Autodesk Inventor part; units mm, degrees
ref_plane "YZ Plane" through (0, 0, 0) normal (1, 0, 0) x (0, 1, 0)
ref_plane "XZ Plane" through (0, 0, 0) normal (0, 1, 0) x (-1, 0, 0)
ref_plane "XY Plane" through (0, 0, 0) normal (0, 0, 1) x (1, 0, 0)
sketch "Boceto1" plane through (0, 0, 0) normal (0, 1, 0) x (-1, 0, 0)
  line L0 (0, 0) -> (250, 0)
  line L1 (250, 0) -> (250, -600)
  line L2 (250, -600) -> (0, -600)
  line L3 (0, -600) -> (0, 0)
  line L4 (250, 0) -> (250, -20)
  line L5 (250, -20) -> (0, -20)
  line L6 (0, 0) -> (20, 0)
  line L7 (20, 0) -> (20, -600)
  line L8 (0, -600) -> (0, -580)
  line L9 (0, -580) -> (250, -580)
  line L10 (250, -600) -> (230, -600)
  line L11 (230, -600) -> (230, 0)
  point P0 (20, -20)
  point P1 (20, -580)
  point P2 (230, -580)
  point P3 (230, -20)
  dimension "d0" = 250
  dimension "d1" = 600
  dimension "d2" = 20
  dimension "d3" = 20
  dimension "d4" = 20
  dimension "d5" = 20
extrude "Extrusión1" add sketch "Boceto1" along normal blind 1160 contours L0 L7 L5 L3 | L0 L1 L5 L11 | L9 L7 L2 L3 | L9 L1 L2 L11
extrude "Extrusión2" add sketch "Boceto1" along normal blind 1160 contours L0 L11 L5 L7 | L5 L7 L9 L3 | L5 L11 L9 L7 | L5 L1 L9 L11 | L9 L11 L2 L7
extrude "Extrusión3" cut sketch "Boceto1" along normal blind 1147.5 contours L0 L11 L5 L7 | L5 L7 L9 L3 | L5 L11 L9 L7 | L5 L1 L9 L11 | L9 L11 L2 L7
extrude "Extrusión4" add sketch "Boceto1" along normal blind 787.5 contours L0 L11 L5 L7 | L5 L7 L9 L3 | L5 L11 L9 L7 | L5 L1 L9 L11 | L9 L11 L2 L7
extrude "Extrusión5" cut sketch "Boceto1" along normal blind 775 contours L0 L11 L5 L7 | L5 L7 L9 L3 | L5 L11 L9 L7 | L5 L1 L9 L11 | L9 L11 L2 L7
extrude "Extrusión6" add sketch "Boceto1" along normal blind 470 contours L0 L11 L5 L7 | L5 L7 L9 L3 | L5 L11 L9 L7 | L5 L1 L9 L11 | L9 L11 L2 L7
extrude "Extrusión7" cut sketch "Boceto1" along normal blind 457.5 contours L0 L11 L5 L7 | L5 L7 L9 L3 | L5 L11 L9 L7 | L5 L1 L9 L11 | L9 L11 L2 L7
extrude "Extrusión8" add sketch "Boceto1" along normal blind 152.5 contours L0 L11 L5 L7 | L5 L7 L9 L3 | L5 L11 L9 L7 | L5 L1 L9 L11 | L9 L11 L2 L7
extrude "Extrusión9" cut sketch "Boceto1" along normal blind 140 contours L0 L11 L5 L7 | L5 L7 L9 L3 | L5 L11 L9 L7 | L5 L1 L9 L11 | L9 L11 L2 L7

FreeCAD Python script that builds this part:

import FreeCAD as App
import Part
import Sketcher
from FreeCAD import Vector

doc = App.newDocument("Part")
body = doc.addObject("PartDesign::Body", "Body")
body.AllowCompound = True

# Sketch on XZ plane
sketch1 = body.newObject("Sketcher::SketchObject", "Sketch")
sketch1.AttachmentSupport = (doc.getObject("XZ_Plane"), [""])
sketch1.MapMode = "FlatFace"
sketch1.addGeometry(Part.LineSegment(Vector(-20, 0, 0), Vector(0, 0, 0)), False)
sketch1.addGeometry(Part.LineSegment(Vector(0, 0, 0), Vector(0, -20, 0)), False)
sketch1.addGeometry(Part.LineSegment(Vector(0, -20, 0), Vector(-20, -20, 0)), False)
sketch1.addGeometry(Part.LineSegment(Vector(-20, -20, 0), Vector(-20, 0, 0)), False)
sketch1.addGeometry(Part.LineSegment(Vector(-250, 0, 0), Vector(-230, 0, 0)), False)
sketch1.addGeometry(Part.LineSegment(Vector(-230, 0, 0), Vector(-230, -20, 0)), False)
sketch1.addGeometry(Part.LineSegment(Vector(-230, -20, 0), Vector(-250, -20, 0)), False)
sketch1.addGeometry(Part.LineSegment(Vector(-250, -20, 0), Vector(-250, 0, 0)), False)
sketch1.addGeometry(Part.LineSegment(Vector(-20, -580, 0), Vector(0, -580, 0)), False)
sketch1.addGeometry(Part.LineSegment(Vector(0, -580, 0), Vector(0, -600, 0)), False)
sketch1.addGeometry(Part.LineSegment(Vector(0, -600, 0), Vector(-20, -600, 0)), False)
sketch1.addGeometry(Part.LineSegment(Vector(-20, -600, 0), Vector(-20, -580, 0)), False)
sketch1.addGeometry(Part.LineSegment(Vector(-250, -580, 0), Vector(-230, -580, 0)), False)
sketch1.addGeometry(Part.LineSegment(Vector(-230, -580, 0), Vector(-230, -600, 0)), False)
sketch1.addGeometry(Part.LineSegment(Vector(-230, -600, 0), Vector(-250, -600, 0)), False)
sketch1.addGeometry(Part.LineSegment(Vector(-250, -600, 0), Vector(-250, -580, 0)), False)
sketch1.addConstraint(Sketcher.Constraint("Coincident", 0, 2, 1, 1))
sketch1.addConstraint(Sketcher.Constraint("Coincident", 1, 2, 2, 1))
sketch1.addConstraint(Sketcher.Constraint("Coincident", 2, 2, 3, 1))
sketch1.addConstraint(Sketcher.Constraint("Coincident", 3, 2, 0, 1))
sketch1.addConstraint(Sketcher.Constraint("Coincident", 4, 2, 5, 1))
sketch1.addConstraint(Sketcher.Constraint("Coincident", 5, 2, 6, 1))
sketch1.addConstraint(Sketcher.Constraint("Coincident", 6, 2, 7, 1))
sketch1.addConstraint(Sketcher.Constraint("Coincident", 7, 2, 4, 1))
sketch1.addConstraint(Sketcher.Constraint("Coincident", 8, 2, 9, 1))
sketch1.addConstraint(Sketcher.Constraint("Coincident", 9, 2, 10, 1))
sketch1.addConstraint(Sketcher.Constraint("Coincident", 10, 2, 11, 1))
sketch1.addConstraint(Sketcher.Constraint("Coincident", 11, 2, 8, 1))
sketch1.addConstraint(Sketcher.Constraint("Coincident", 12, 2, 13, 1))
sketch1.addConstraint(Sketcher.Constraint("Coincident", 13, 2, 14, 1))
sketch1.addConstraint(Sketcher.Constraint("Coincident", 14, 2, 15, 1))
sketch1.addConstraint(Sketcher.Constraint("Coincident", 15, 2, 12, 1))
sketch1.addConstraint(Sketcher.Constraint("Horizontal", 0))
sketch1.addConstraint(Sketcher.Constraint("Vertical", 1))
sketch1.addConstraint(Sketcher.Constraint("Horizontal", 2))
sketch1.addConstraint(Sketcher.Constraint("Vertical", 3))
sketch1.addConstraint(Sketcher.Constraint("Horizontal", 4))
sketch1.addConstraint(Sketcher.Constraint("Vertical", 5))
sketch1.addConstraint(Sketcher.Constraint("Horizontal", 6))
sketch1.addConstraint(Sketcher.Constraint("Vertical", 7))
sketch1.addConstraint(Sketcher.Constraint("Horizontal", 8))
sketch1.addConstraint(Sketcher.Constraint("Vertical", 9))
sketch1.addConstraint(Sketcher.Constraint("Horizontal", 10))
sketch1.addConstraint(Sketcher.Constraint("Vertical", 11))
sketch1.addConstraint(Sketcher.Constraint("Horizontal", 12))
sketch1.addConstraint(Sketcher.Constraint("Vertical", 13))
sketch1.addConstraint(Sketcher.Constraint("Horizontal", 14))
sketch1.addConstraint(Sketcher.Constraint("Vertical", 15))
sketch1.addConstraint(Sketcher.Constraint("Coincident", 0, 2, -1, 1))
sketch1.addConstraint(Sketcher.Constraint("PointOnObject", 4, 2, -1))
sketch1.addConstraint(Sketcher.Constraint("PointOnObject", 8, 2, -2))
sketch1.addConstraint(Sketcher.Constraint("Horizontal", 2, 2, 5, 2))
sketch1.addConstraint(Sketcher.Constraint("Horizontal", 11, 2, 12, 2))
sketch1.addConstraint(Sketcher.Constraint("Horizontal", 10, 2, 13, 2))
sketch1.addConstraint(Sketcher.Constraint("Vertical", 3, 2, 10, 2))
sketch1.addConstraint(Sketcher.Constraint("Vertical", 5, 2, 12, 2))
sketch1.addConstraint(Sketcher.Constraint("Vertical", 7, 2, 14, 2))
sketch1.addConstraint(Sketcher.Constraint("Equal", 2, 4))
sketch1.addConstraint(Sketcher.Constraint("Equal", 14, 1))
sketch1.addConstraint(Sketcher.Constraint("Equal", 7, 9))
sketch1.addConstraint(Sketcher.Constraint("DistanceX", 0, 1, 0, 2, 20.0))
sketch1.addConstraint(Sketcher.Constraint("DistanceX", 6, 2, -1, 1, 250.0))
sketch1.addConstraint(Sketcher.Constraint("DistanceY", 9, 2, -1, 1, 600.0))
pad1 = body.newObject("PartDesign::Pad", "Pad")
pad1.Profile = sketch1
pad1.Length = 1160
pad1.Reversed = True

# Sketch on XZ plane
sketch2 = body.newObject("Sketcher::SketchObject", "Sketch001")
sketch2.AttachmentSupport = (doc.getObject("XZ_Plane"), [""])
sketch2.MapMode = "FlatFace"
sketch2.addGeometry(Part.LineSegment(Vector(-230, 0, 0), Vector(-20, 0, 0)), False)
sketch2.addGeometry(Part.LineSegment(Vector(-20, 0, 0), Vector(-20, -20, 0)), False)
sketch2.addGeometry(Part.LineSegment(Vector(-20, -20, 0), Vector(0, -20, 0)), False)
sketch2.addGeometry(Part.LineSegment(Vector(0, -20, 0), Vector(0, -580, 0)), False)
sketch2.addGeometry(Part.LineSegment(Vector(0, -580, 0), Vector(-20, -580, 0)), False)
sketch2.addGeometry(Part.LineSegment(Vector(-20, -580, 0), Vector(-20, -600, 0)), False)
sketch2.addGeometry(Part.LineSegment(Vector(-20, -600, 0), Vector(-230, -600, 0)), False)
sketch2.addGeometry(Part.LineSegment(Vector(-230, -600, 0), Vector(-230, -580, 0)), False)
sketch2.addGeometry(Part.LineSegment(Vector(-230, -580, 0), Vector(-250, -580, 0)), False)
sketch2.addGeometry(Part.LineSegment(Vector(-250, -580, 0), Vector(-250, -20, 0)), False)
sketch2.addGeometry(Part.LineSegment(Vector(-250, -20, 0), Vector(-230, -20, 0)), False)
sketch2.addGeometry(Part.LineSegment(Vector(-230, -20, 0), Vector(-230, 0, 0)), False)
sketch2.addConstraint(Sketcher.Constraint("Coincident", 0, 2, 1, 1))
sketch2.addConstraint(Sketcher.Constraint("Coincident", 1, 2, 2, 1))
sketch2.addConstraint(Sketcher.Constraint("Coincident", 2, 2, 3, 1))
sketch2.addConstraint(Sketcher.Constraint("Coincident", 3, 2, 4, 1))
sketch2.addConstraint(Sketcher.Constraint("Coincident", 4, 2, 5, 1))
sketch2.addConstraint(Sketcher.Constraint("Coincident", 5, 2, 6, 1))
sketch2.addConstraint(Sketcher.Constraint("Coincident", 6, 2, 7, 1))
sketch2.addConstraint(Sketcher.Constraint("Coincident", 7, 2, 8, 1))
sketch2.addConstraint(Sketcher.Constraint("Coincident", 8, 2, 9, 1))
sketch2.addConstraint(Sketcher.Constraint("Coincident", 9, 2, 10, 1))
sketch2.addConstraint(Sketcher.Constraint("Coincident", 10, 2, 11, 1))
sketch2.addConstraint(Sketcher.Constraint("Coincident", 11, 2, 0, 1))
sketch2.addConstraint(Sketcher.Constraint("Horizontal", 0))
sketch2.addConstraint(Sketcher.Constraint("Vertical", 1))
sketch2.addConstraint(Sketcher.Constraint("Horizontal", 2))
sketch2.addConstraint(Sketcher.Constraint("Vertical", 3))
sketch2.addConstraint(Sketcher.Constraint("Horizontal", 4))
sketch2.addConstraint(Sketcher.Constraint("Vertical", 5))
sketch2.addConstraint(Sketcher.Constraint("Horizontal", 6))
sketch2.addConstraint(Sketcher.Constraint("Vertical", 7))
sketch2.addConstraint(Sketcher.Constraint("Horizontal", 8))
sketch2.addConstraint(Sketcher.Constraint("Vertical", 9))
sketch2.addConstraint(Sketcher.Constraint("Horizontal", 10))
sketch2.addConstraint(Sketcher.Constraint("Vertical", 11))
sketch2.addConstraint(Sketcher.Constraint("PointOnObject", 0, 2, -1))
sketch2.addConstraint(Sketcher.Constraint("PointOnObject", 2, 2, -2))
sketch2.addConstraint(Sketcher.Constraint("Horizontal", 4, 2, 7, 2))
sketch2.addConstraint(Sketcher.Constraint("Horizontal", 2, 2, 9, 2))
sketch2.addConstraint(Sketcher.Constraint("Vertical", 1, 2, 4, 2))
sketch2.addConstraint(Sketcher.Constraint("Vertical", 7, 2, 10, 2))
sketch2.addConstraint(Sketcher.Constraint("Equal", 4, 8))
sketch2.addConstraint(Sketcher.Constraint("Equal", 10, 1))
sketch2.addConstraint(Sketcher.Constraint("Equal", 1, 5))
sketch2.addConstraint(Sketcher.Constraint("DistanceX", 2, 1, 2, 2, 20.0))
sketch2.addConstraint(Sketcher.Constraint("DistanceY", 5, 2, -1, 1, 600.0))
sketch2.addConstraint(Sketcher.Constraint("DistanceX", 8, 2, -1, 1, 250.0))
pad2 = body.newObject("PartDesign::Pad", "Pad001")
pad2.Profile = sketch2
pad2.Length = 1160
pad2.Reversed = True

# Sketch on XZ plane
sketch3 = body.newObject("Sketcher::SketchObject", "Sketch002")
sketch3.AttachmentSupport = (doc.getObject("XZ_Plane"), [""])
sketch3.MapMode = "FlatFace"
sketch3.addGeometry(Part.LineSegment(Vector(-230, 0, 0), Vector(-20, 0, 0)), False)
sketch3.addGeometry(Part.LineSegment(Vector(-20, 0, 0), Vector(-20, -20, 0)), False)
sketch3.addGeometry(Part.LineSegment(Vector(-20, -20, 0), Vector(0, -20, 0)), False)
sketch3.addGeometry(Part.LineSegment(Vector(0, -20, 0), Vector(0, -580, 0)), False)
sketch3.addGeometry(Part.LineSegment(Vector(0, -580, 0), Vector(-20, -580, 0)), False)
sketch3.addGeometry(Part.LineSegment(Vector(-20, -580, 0), Vector(-20, -600, 0)), False)
sketch3.addGeometry(Part.LineSegment(Vector(-20, -600, 0), Vector(-230, -600, 0)), False)
sketch3.addGeometry(Part.LineSegment(Vector(-230, -600, 0), Vector(-230, -580, 0)), False)
sketch3.addGeometry(Part.LineSegment(Vector(-230, -580, 0), Vector(-250, -580, 0)), False)
sketch3.addGeometry(Part.LineSegment(Vector(-250, -580, 0), Vector(-250, -20, 0)), False)
sketch3.addGeometry(Part.LineSegment(Vector(-250, -20, 0), Vector(-230, -20, 0)), False)
sketch3.addGeometry(Part.LineSegment(Vector(-230, -20, 0), Vector(-230, 0, 0)), False)
sketch3.addConstraint(Sketcher.Constraint("Coincident", 0, 2, 1, 1))
sketch3.addConstraint(Sketcher.Constraint("Coincident", 1, 2, 2, 1))
sketch3.addConstraint(Sketcher.Constraint("Coincident", 2, 2, 3, 1))
sketch3.addConstraint(Sketcher.Constraint("Coincident", 3, 2, 4, 1))
sketch3.addConstraint(Sketcher.Constraint("Coincident", 4, 2, 5, 1))
sketch3.addConstraint(Sketcher.Constraint("Coincident", 5, 2, 6, 1))
sketch3.addConstraint(Sketcher.Constraint("Coincident", 6, 2, 7, 1))
sketch3.addConstraint(Sketcher.Constraint("Coincident", 7, 2, 8, 1))
sketch3.addConstraint(Sketcher.Constraint("Coincident", 8, 2, 9, 1))
sketch3.addConstraint(Sketcher.Constraint("Coincident", 9, 2, 10, 1))
sketch3.addConstraint(Sketcher.Constraint("Coincident", 10, 2, 11, 1))
sketch3.addConstraint(Sketcher.Constraint("Coincident", 11, 2, 0, 1))
sketch3.addConstraint(Sketcher.Constraint("Horizontal", 0))
sketch3.addConstraint(Sketcher.Constraint("Vertical", 1))
sketch3.addConstraint(Sketcher.Constraint("Horizontal", 2))
sketch3.addConstraint(Sketcher.Constraint("Vertical", 3))
sketch3.addConstraint(Sketcher.Constraint("Horizontal", 4))
sketch3.addConstraint(Sketcher.Constraint("Vertical", 5))
sketch3.addConstraint(Sketcher.Constraint("Horizontal", 6))
sketch3.addConstraint(Sketcher.Constraint("Vertical", 7))
sketch3.addConstraint(Sketcher.Constraint("Horizontal", 8))
sketch3.addConstraint(Sketcher.Constraint("Vertical", 9))
sketch3.addConstraint(Sketcher.Constraint("Horizontal", 10))
sketch3.addConstraint(Sketcher.Constraint("Vertical", 11))
sketch3.addConstraint(Sketcher.Constraint("PointOnObject", 0, 2, -1))
sketch3.addConstraint(Sketcher.Constraint("PointOnObject", 2, 2, -2))
sketch3.addConstraint(Sketcher.Constraint("Horizontal", 4, 2, 7, 2))
sketch3.addConstraint(Sketcher.Constraint("Horizontal", 2, 2, 9, 2))
sketch3.addConstraint(Sketcher.Constraint("Vertical", 1, 2, 4, 2))
sketch3.addConstraint(Sketcher.Constraint("Vertical", 7, 2, 10, 2))
sketch3.addConstraint(Sketcher.Constraint("Equal", 4, 8))
sketch3.addConstraint(Sketcher.Constraint("Equal", 10, 1))
sketch3.addConstraint(Sketcher.Constraint("Equal", 1, 5))
sketch3.addConstraint(Sketcher.Constraint("DistanceX", 2, 1, 2, 2, 20.0))
sketch3.addConstraint(Sketcher.Constraint("DistanceY", 5, 2, -1, 1, 600.0))
sketch3.addConstraint(Sketcher.Constraint("DistanceX", 8, 2, -1, 1, 250.0))
pocket1 = body.newObject("PartDesign::Pocket", "Pocket")
pocket1.Profile = sketch3
pocket1.Length = 1147.5

# Sketch on XZ plane
sketch4 = body.newObject("Sketcher::SketchObject", "Sketch003")
sketch4.AttachmentSupport = (doc.getObject("XZ_Plane"), [""])
sketch4.MapMode = "FlatFace"
sketch4.addGeometry(Part.LineSegment(Vector(-230, 0, 0), Vector(-20, 0, 0)), False)
sketch4.addGeometry(Part.LineSegment(Vector(-20, 0, 0), Vector(-20, -20, 0)), False)
sketch4.addGeometry(Part.LineSegment(Vector(-20, -20, 0), Vector(0, -20, 0)), False)
sketch4.addGeometry(Part.LineSegment(Vector(0, -20, 0), Vector(0, -580, 0)), False)
sketch4.addGeometry(Part.LineSegment(Vector(0, -580, 0), Vector(-20, -580, 0)), False)
sketch4.addGeometry(Part.LineSegment(Vector(-20, -580, 0), Vector(-20, -600, 0)), False)
sketch4.addGeometry(Part.LineSegment(Vector(-20, -600, 0), Vector(-230, -600, 0)), False)
sketch4.addGeometry(Part.LineSegment(Vector(-230, -600, 0), Vector(-230, -580, 0)), False)
sketch4.addGeometry(Part.LineSegment(Vector(-230, -580, 0), Vector(-250, -580, 0)), False)
sketch4.addGeometry(Part.LineSegment(Vector(-250, -580, 0), Vector(-250, -20, 0)), False)
sketch4.addGeometry(Part.LineSegment(Vector(-250, -20, 0), Vector(-230, -20, 0)), False)
sketch4.addGeometry(Part.LineSegment(Vector(-230, -20, 0), Vector(-230, 0, 0)), False)
sketch4.addConstraint(Sketcher.Constraint("Coincident", 0, 2, 1, 1))
sketch4.addConstraint(Sketcher.Constraint("Coincident", 1, 2, 2, 1))
sketch4.addConstraint(Sketcher.Constraint("Coincident", 2, 2, 3, 1))
sketch4.addConstraint(Sketcher.Constraint("Coincident", 3, 2, 4, 1))
sketch4.addConstraint(Sketcher.Constraint("Coincident", 4, 2, 5, 1))
sketch4.addConstraint(Sketcher.Constraint("Coincident", 5, 2, 6, 1))
sketch4.addConstraint(Sketcher.Constraint("Coincident", 6, 2, 7, 1))
sketch4.addConstraint(Sketcher.Constraint("Coincident", 7, 2, 8, 1))
sketch4.addConstraint(Sketcher.Constraint("Coincident", 8, 2, 9, 1))
sketch4.addConstraint(Sketcher.Constraint("Coincident", 9, 2, 10, 1))
sketch4.addConstraint(Sketcher.Constraint("Coincident", 10, 2, 11, 1))
sketch4.addConstraint(Sketcher.Constraint("Coincident", 11, 2, 0, 1))
sketch4.addConstraint(Sketcher.Constraint("Horizontal", 0))
sketch4.addConstraint(Sketcher.Constraint("Vertical", 1))
sketch4.addConstraint(Sketcher.Constraint("Horizontal", 2))
sketch4.addConstraint(Sketcher.Constraint("Vertical", 3))
sketch4.addConstraint(Sketcher.Constraint("Horizontal", 4))
sketch4.addConstraint(Sketcher.Constraint("Vertical", 5))
sketch4.addConstraint(Sketcher.Constraint("Horizontal", 6))
sketch4.addConstraint(Sketcher.Constraint("Vertical", 7))
sketch4.addConstraint(Sketcher.Constraint("Horizontal", 8))
sketch4.addConstraint(Sketcher.Constraint("Vertical", 9))
sketch4.addConstraint(Sketcher.Constraint("Horizontal", 10))
sketch4.addConstraint(Sketcher.Constraint("Vertical", 11))
sketch4.addConstraint(Sketcher.Constraint("PointOnObject", 0, 2, -1))
sketch4.addConstraint(Sketcher.Constraint("PointOnObject", 2, 2, -2))
sketch4.addConstraint(Sketcher.Constraint("Horizontal", 4, 2, 7, 2))
sketch4.addConstraint(Sketcher.Constraint("Horizontal", 2, 2, 9, 2))
sketch4.addConstraint(Sketcher.Constraint("Vertical", 1, 2, 4, 2))
sketch4.addConstraint(Sketcher.Constraint("Vertical", 7, 2, 10, 2))
sketch4.addConstraint(Sketcher.Constraint("Equal", 4, 8))
sketch4.addConstraint(Sketcher.Constraint("Equal", 10, 1))
sketch4.addConstraint(Sketcher.Constraint("Equal", 1, 5))
sketch4.addConstraint(Sketcher.Constraint("DistanceX", 2, 1, 2, 2, 20.0))
sketch4.addConstraint(Sketcher.Constraint("DistanceY", 5, 2, -1, 1, 600.0))
sketch4.addConstraint(Sketcher.Constraint("DistanceX", 8, 2, -1, 1, 250.0))
pad3 = body.newObject("PartDesign::Pad", "Pad002")
pad3.Profile = sketch4
pad3.Length = 787.5
pad3.Reversed = True

# Sketch on XZ plane
sketch5 = body.newObject("Sketcher::SketchObject", "Sketch004")
sketch5.AttachmentSupport = (doc.getObject("XZ_Plane"), [""])
sketch5.MapMode = "FlatFace"
sketch5.addGeometry(Part.LineSegment(Vector(-230, 0, 0), Vector(-20, 0, 0)), False)
sketch5.addGeometry(Part.LineSegment(Vector(-20, 0, 0), Vector(-20, -20, 0)), False)
sketch5.addGeometry(Part.LineSegment(Vector(-20, -20, 0), Vector(0, -20, 0)), False)
sketch5.addGeometry(Part.LineSegment(Vector(0, -20, 0), Vector(0, -580, 0)), False)
sketch5.addGeometry(Part.LineSegment(Vector(0, -580, 0), Vector(-20, -580, 0)), False)
sketch5.addGeometry(Part.LineSegment(Vector(-20, -580, 0), Vector(-20, -600, 0)), False)
sketch5.addGeometry(Part.LineSegment(Vector(-20, -600, 0), Vector(-230, -600, 0)), False)
sketch5.addGeometry(Part.LineSegment(Vector(-230, -600, 0), Vector(-230, -580, 0)), False)
sketch5.addGeometry(Part.LineSegment(Vector(-230, -580, 0), Vector(-250, -580, 0)), False)
sketch5.addGeometry(Part.LineSegment(Vector(-250, -580, 0), Vector(-250, -20, 0)), False)
sketch5.addGeometry(Part.LineSegment(Vector(-250, -20, 0), Vector(-230, -20, 0)), False)
sketch5.addGeometry(Part.LineSegment(Vector(-230, -20, 0), Vector(-230, 0, 0)), False)
sketch5.addConstraint(Sketcher.Constraint("Coincident", 0, 2, 1, 1))
sketch5.addConstraint(Sketcher.Constraint("Coincident", 1, 2, 2, 1))
sketch5.addConstraint(Sketcher.Constraint("Coincident", 2, 2, 3, 1))
sketch5.addConstraint(Sketcher.Constraint("Coincident", 3, 2, 4, 1))
sketch5.addConstraint(Sketcher.Constraint("Coincident", 4, 2, 5, 1))
sketch5.addConstraint(Sketcher.Constraint("Coincident", 5, 2, 6, 1))
sketch5.addConstraint(Sketcher.Constraint("Coincident", 6, 2, 7, 1))
sketch5.addConstraint(Sketcher.Constraint("Coincident", 7, 2, 8, 1))
sketch5.addConstraint(Sketcher.Constraint("Coincident", 8, 2, 9, 1))
sketch5.addConstraint(Sketcher.Constraint("Coincident", 9, 2, 10, 1))
sketch5.addConstraint(Sketcher.Constraint("Coincident", 10, 2, 11, 1))
sketch5.addConstraint(Sketcher.Constraint("Coincident", 11, 2, 0, 1))
sketch5.addConstraint(Sketcher.Constraint("Horizontal", 0))
sketch5.addConstraint(Sketcher.Constraint("Vertical", 1))
sketch5.addConstraint(Sketcher.Constraint("Horizontal", 2))
sketch5.addConstraint(Sketcher.Constraint("Vertical", 3))
sketch5.addConstraint(Sketcher.Constraint("Horizontal", 4))
sketch5.addConstraint(Sketcher.Constraint("Vertical", 5))
sketch5.addConstraint(Sketcher.Constraint("Horizontal", 6))
sketch5.addConstraint(Sketcher.Constraint("Vertical", 7))
sketch5.addConstraint(Sketcher.Constraint("Horizontal", 8))
sketch5.addConstraint(Sketcher.Constraint("Vertical", 9))
sketch5.addConstraint(Sketcher.Constraint("Horizontal", 10))
sketch5.addConstraint(Sketcher.Constraint("Vertical", 11))
sketch5.addConstraint(Sketcher.Constraint("PointOnObject", 0, 2, -1))
sketch5.addConstraint(Sketcher.Constraint("PointOnObject", 2, 2, -2))
sketch5.addConstraint(Sketcher.Constraint("Horizontal", 4, 2, 7, 2))
sketch5.addConstraint(Sketcher.Constraint("Horizontal", 2, 2, 9, 2))
sketch5.addConstraint(Sketcher.Constraint("Vertical", 1, 2, 4, 2))
sketch5.addConstraint(Sketcher.Constraint("Vertical", 7, 2, 10, 2))
sketch5.addConstraint(Sketcher.Constraint("Equal", 4, 8))
sketch5.addConstraint(Sketcher.Constraint("Equal", 10, 1))
sketch5.addConstraint(Sketcher.Constraint("Equal", 1, 5))
sketch5.addConstraint(Sketcher.Constraint("DistanceX", 2, 1, 2, 2, 20.0))
sketch5.addConstraint(Sketcher.Constraint("DistanceY", 5, 2, -1, 1, 600.0))
sketch5.addConstraint(Sketcher.Constraint("DistanceX", 8, 2, -1, 1, 250.0))
pocket2 = body.newObject("PartDesign::Pocket", "Pocket001")
pocket2.Profile = sketch5
pocket2.Length = 775

# Sketch on XZ plane
sketch6 = body.newObject("Sketcher::SketchObject", "Sketch005")
sketch6.AttachmentSupport = (doc.getObject("XZ_Plane"), [""])
sketch6.MapMode = "FlatFace"
sketch6.addGeometry(Part.LineSegment(Vector(-230, 0, 0), Vector(-20, 0, 0)), False)
sketch6.addGeometry(Part.LineSegment(Vector(-20, 0, 0), Vector(-20, -20, 0)), False)
sketch6.addGeometry(Part.LineSegment(Vector(-20, -20, 0), Vector(0, -20, 0)), False)
sketch6.addGeometry(Part.LineSegment(Vector(0, -20, 0), Vector(0, -580, 0)), False)
sketch6.addGeometry(Part.LineSegment(Vector(0, -580, 0), Vector(-20, -580, 0)), False)
sketch6.addGeometry(Part.LineSegment(Vector(-20, -580, 0), Vector(-20, -600, 0)), False)
sketch6.addGeometry(Part.LineSegment(Vector(-20, -600, 0), Vector(-230, -600, 0)), False)
sketch6.addGeometry(Part.LineSegment(Vector(-230, -600, 0), Vector(-230, -580, 0)), False)
sketch6.addGeometry(Part.LineSegment(Vector(-230, -580, 0), Vector(-250, -580, 0)), False)
sketch6.addGeometry(Part.LineSegment(Vector(-250, -580, 0), Vector(-250, -20, 0)), False)
sketch6.addGeometry(Part.LineSegment(Vector(-250, -20, 0), Vector(-230, -20, 0)), False)
sketch6.addGeometry(Part.LineSegment(Vector(-230, -20, 0), Vector(-230, 0, 0)), False)
sketch6.addConstraint(Sketcher.Constraint("Coincident", 0, 2, 1, 1))
sketch6.addConstraint(Sketcher.Constraint("Coincident", 1, 2, 2, 1))
sketch6.addConstraint(Sketcher.Constraint("Coincident", 2, 2, 3, 1))
sketch6.addConstraint(Sketcher.Constraint("Coincident", 3, 2, 4, 1))
sketch6.addConstraint(Sketcher.Constraint("Coincident", 4, 2, 5, 1))
sketch6.addConstraint(Sketcher.Constraint("Coincident", 5, 2, 6, 1))
sketch6.addConstraint(Sketcher.Constraint("Coincident", 6, 2, 7, 1))
sketch6.addConstraint(Sketcher.Constraint("Coincident", 7, 2, 8, 1))
sketch6.addConstraint(Sketcher.Constraint("Coincident", 8, 2, 9, 1))
sketch6.addConstraint(Sketcher.Constraint("Coincident", 9, 2, 10, 1))
sketch6.addConstraint(Sketcher.Constraint("Coincident", 10, 2, 11, 1))
sketch6.addConstraint(Sketcher.Constraint("Coincident", 11, 2, 0, 1))
sketch6.addConstraint(Sketcher.Constraint("Horizontal", 0))
sketch6.addConstraint(Sketcher.Constraint("Vertical", 1))
sketch6.addConstraint(Sketcher.Constraint("Horizontal", 2))
sketch6.addConstraint(Sketcher.Constraint("Vertical", 3))
sketch6.addConstraint(Sketcher.Constraint("Horizontal", 4))
sketch6.addConstraint(Sketcher.Constraint("Vertical", 5))
sketch6.addConstraint(Sketcher.Constraint("Horizontal", 6))
sketch6.addConstraint(Sketcher.Constraint("Vertical", 7))
sketch6.addConstraint(Sketcher.Constraint("Horizontal", 8))
sketch6.addConstraint(Sketcher.Constraint("Vertical", 9))
sketch6.addConstraint(Sketcher.Constraint("Horizontal", 10))
sketch6.addConstraint(Sketcher.Constraint("Vertical", 11))
sketch6.addConstraint(Sketcher.Constraint("PointOnObject", 0, 2, -1))
sketch6.addConstraint(Sketcher.Constraint("PointOnObject", 2, 2, -2))
sketch6.addConstraint(Sketcher.Constraint("Horizontal", 4, 2, 7, 2))
sketch6.addConstraint(Sketcher.Constraint("Horizontal", 2, 2, 9, 2))
sketch6.addConstraint(Sketcher.Constraint("Vertical", 1, 2, 4, 2))
sketch6.addConstraint(Sketcher.Constraint("Vertical", 7, 2, 10, 2))
sketch6.addConstraint(Sketcher.Constraint("Equal", 4, 8))
sketch6.addConstraint(Sketcher.Constraint("Equal", 10, 1))
sketch6.addConstraint(Sketcher.Constraint("Equal", 1, 5))
sketch6.addConstraint(Sketcher.Constraint("DistanceX", 2, 1, 2, 2, 20.0))
sketch6.addConstraint(Sketcher.Constraint("DistanceY", 5, 2, -1, 1, 600.0))
sketch6.addConstraint(Sketcher.Constraint("DistanceX", 8, 2, -1, 1, 250.0))
pad4 = body.newObject("PartDesign::Pad", "Pad003")
pad4.Profile = sketch6
pad4.Length = 470
pad4.Reversed = True

# Sketch on XZ plane
sketch7 = body.newObject("Sketcher::SketchObject", "Sketch006")
sketch7.AttachmentSupport = (doc.getObject("XZ_Plane"), [""])
sketch7.MapMode = "FlatFace"
sketch7.addGeometry(Part.LineSegment(Vector(-230, 0, 0), Vector(-20, 0, 0)), False)
sketch7.addGeometry(Part.LineSegment(Vector(-20, 0, 0), Vector(-20, -20, 0)), False)
sketch7.addGeometry(Part.LineSegment(Vector(-20, -20, 0), Vector(0, -20, 0)), False)
sketch7.addGeometry(Part.LineSegment(Vector(0, -20, 0), Vector(0, -580, 0)), False)
sketch7.addGeometry(Part.LineSegment(Vector(0, -580, 0), Vector(-20, -580, 0)), False)
sketch7.addGeometry(Part.LineSegment(Vector(-20, -580, 0), Vector(-20, -600, 0)), False)
sketch7.addGeometry(Part.LineSegment(Vector(-20, -600, 0), Vector(-230, -600, 0)), False)
sketch7.addGeometry(Part.LineSegment(Vector(-230, -600, 0), Vector(-230, -580, 0)), False)
sketch7.addGeometry(Part.LineSegment(Vector(-230, -580, 0), Vector(-250, -580, 0)), False)
sketch7.addGeometry(Part.LineSegment(Vector(-250, -580, 0), Vector(-250, -20, 0)), False)
sketch7.addGeometry(Part.LineSegment(Vector(-250, -20, 0), Vector(-230, -20, 0)), False)
sketch7.addGeometry(Part.LineSegment(Vector(-230, -20, 0), Vector(-230, 0, 0)), False)
sketch7.addConstraint(Sketcher.Constraint("Coincident", 0, 2, 1, 1))
sketch7.addConstraint(Sketcher.Constraint("Coincident", 1, 2, 2, 1))
sketch7.addConstraint(Sketcher.Constraint("Coincident", 2, 2, 3, 1))
sketch7.addConstraint(Sketcher.Constraint("Coincident", 3, 2, 4, 1))
sketch7.addConstraint(Sketcher.Constraint("Coincident", 4, 2, 5, 1))
sketch7.addConstraint(Sketcher.Constraint("Coincident", 5, 2, 6, 1))
sketch7.addConstraint(Sketcher.Constraint("Coincident", 6, 2, 7, 1))
sketch7.addConstraint(Sketcher.Constraint("Coincident", 7, 2, 8, 1))
sketch7.addConstraint(Sketcher.Constraint("Coincident", 8, 2, 9, 1))
sketch7.addConstraint(Sketcher.Constraint("Coincident", 9, 2, 10, 1))
sketch7.addConstraint(Sketcher.Constraint("Coincident", 10, 2, 11, 1))
sketch7.addConstraint(Sketcher.Constraint("Coincident", 11, 2, 0, 1))
sketch7.addConstraint(Sketcher.Constraint("Horizontal", 0))
sketch7.addConstraint(Sketcher.Constraint("Vertical", 1))
sketch7.addConstraint(Sketcher.Constraint("Horizontal", 2))
sketch7.addConstraint(Sketcher.Constraint("Vertical", 3))
sketch7.addConstraint(Sketcher.Constraint("Horizontal", 4))
sketch7.addConstraint(Sketcher.Constraint("Vertical", 5))
sketch7.addConstraint(Sketcher.Constraint("Horizontal", 6))
sketch7.addConstraint(Sketcher.Constraint("Vertical", 7))
sketch7.addConstraint(Sketcher.Constraint("Horizontal", 8))
sketch7.addConstraint(Sketcher.Constraint("Vertical", 9))
sketch7.addConstraint(Sketcher.Constraint("Horizontal", 10))
sketch7.addConstraint(Sketcher.Constraint("Vertical", 11))
sketch7.addConstraint(Sketcher.Constraint("PointOnObject", 0, 2, -1))
sketch7.addConstraint(Sketcher.Constraint("PointOnObject", 2, 2, -2))
sketch7.addConstraint(Sketcher.Constraint("Horizontal", 4, 2, 7, 2))
sketch7.addConstraint(Sketcher.Constraint("Horizontal", 2, 2, 9, 2))
sketch7.addConstraint(Sketcher.Constraint("Vertical", 1, 2, 4, 2))
sketch7.addConstraint(Sketcher.Constraint("Vertical", 7, 2, 10, 2))
sketch7.addConstraint(Sketcher.Constraint("Equal", 4, 8))
sketch7.addConstraint(Sketcher.Constraint("Equal", 10, 1))
sketch7.addConstraint(Sketcher.Constraint("Equal", 1, 5))
sketch7.addConstraint(Sketcher.Constraint("DistanceX", 2, 1, 2, 2, 20.0))
sketch7.addConstraint(Sketcher.Constraint("DistanceY", 5, 2, -1, 1, 600.0))
sketch7.addConstraint(Sketcher.Constraint("DistanceX", 8, 2, -1, 1, 250.0))
pocket3 = body.newObject("PartDesign::Pocket", "Pocket002")
pocket3.Profile = sketch7
pocket3.Length = 457.5

# Sketch on XZ plane
sketch8 = body.newObject("Sketcher::SketchObject", "Sketch007")
sketch8.AttachmentSupport = (doc.getObject("XZ_Plane"), [""])
sketch8.MapMode = "FlatFace"
sketch8.addGeometry(Part.LineSegment(Vector(-230, 0, 0), Vector(-20, 0, 0)), False)
sketch8.addGeometry(Part.LineSegment(Vector(-20, 0, 0), Vector(-20, -20, 0)), False)
sketch8.addGeometry(Part.LineSegment(Vector(-20, -20, 0), Vector(0, -20, 0)), False)
sketch8.addGeometry(Part.LineSegment(Vector(0, -20, 0), Vector(0, -580, 0)), False)
sketch8.addGeometry(Part.LineSegment(Vector(0, -580, 0), Vector(-20, -580, 0)), False)
sketch8.addGeometry(Part.LineSegment(Vector(-20, -580, 0), Vector(-20, -600, 0)), False)
sketch8.addGeometry(Part.LineSegment(Vector(-20, -600, 0), Vector(-230, -600, 0)), False)
sketch8.addGeometry(Part.LineSegment(Vector(-230, -600, 0), Vector(-230, -580, 0)), False)
sketch8.addGeometry(Part.LineSegment(Vector(-230, -580, 0), Vector(-250, -580, 0)), False)
sketch8.addGeometry(Part.LineSegment(Vector(-250, -580, 0), Vector(-250, -20, 0)), False)
sketch8.addGeometry(Part.LineSegment(Vector(-250, -20, 0), Vector(-230, -20, 0)), False)
sketch8.addGeometry(Part.LineSegment(Vector(-230, -20, 0), Vector(-230, 0, 0)), False)
sketch8.addConstraint(Sketcher.Constraint("Coincident", 0, 2, 1, 1))
sketch8.addConstraint(Sketcher.Constraint("Coincident", 1, 2, 2, 1))
sketch8.addConstraint(Sketcher.Constraint("Coincident", 2, 2, 3, 1))
sketch8.addConstraint(Sketcher.Constraint("Coincident", 3, 2, 4, 1))
sketch8.addConstraint(Sketcher.Constraint("Coincident", 4, 2, 5, 1))
sketch8.addConstraint(Sketcher.Constraint("Coincident", 5, 2, 6, 1))
sketch8.addConstraint(Sketcher.Constraint("Coincident", 6, 2, 7, 1))
sketch8.addConstraint(Sketcher.Constraint("Coincident", 7, 2, 8, 1))
sketch8.addConstraint(Sketcher.Constraint("Coincident", 8, 2, 9, 1))
sketch8.addConstraint(Sketcher.Constraint("Coincident", 9, 2, 10, 1))
sketch8.addConstraint(Sketcher.Constraint("Coincident", 10, 2, 11, 1))
sketch8.addConstraint(Sketcher.Constraint("Coincident", 11, 2, 0, 1))
sketch8.addConstraint(Sketcher.Constraint("Horizontal", 0))
sketch8.addConstraint(Sketcher.Constraint("Vertical", 1))
sketch8.addConstraint(Sketcher.Constraint("Horizontal", 2))
sketch8.addConstraint(Sketcher.Constraint("Vertical", 3))
sketch8.addConstraint(Sketcher.Constraint("Horizontal", 4))
sketch8.addConstraint(Sketcher.Constraint("Vertical", 5))
sketch8.addConstraint(Sketcher.Constraint("Horizontal", 6))
sketch8.addConstraint(Sketcher.Constraint("Vertical", 7))
sketch8.addConstraint(Sketcher.Constraint("Horizontal", 8))
sketch8.addConstraint(Sketcher.Constraint("Vertical", 9))
sketch8.addConstraint(Sketcher.Constraint("Horizontal", 10))
sketch8.addConstraint(Sketcher.Constraint("Vertical", 11))
sketch8.addConstraint(Sketcher.Constraint("PointOnObject", 0, 2, -1))
sketch8.addConstraint(Sketcher.Constraint("PointOnObject", 2, 2, -2))
sketch8.addConstraint(Sketcher.Constraint("Horizontal", 4, 2, 7, 2))
sketch8.addConstraint(Sketcher.Constraint("Horizontal", 2, 2, 9, 2))
sketch8.addConstraint(Sketcher.Constraint("Vertical", 1, 2, 4, 2))
sketch8.addConstraint(Sketcher.Constraint("Vertical", 7, 2, 10, 2))
sketch8.addConstraint(Sketcher.Constraint("Equal", 4, 8))
sketch8.addConstraint(Sketcher.Constraint("Equal", 10, 1))
sketch8.addConstraint(Sketcher.Constraint("Equal", 1, 5))
sketch8.addConstraint(Sketcher.Constraint("DistanceX", 2, 1, 2, 2, 20.0))
sketch8.addConstraint(Sketcher.Constraint("DistanceY", 5, 2, -1, 1, 600.0))
sketch8.addConstraint(Sketcher.Constraint("DistanceX", 8, 2, -1, 1, 250.0))
pad5 = body.newObject("PartDesign::Pad", "Pad004")
pad5.Profile = sketch8
pad5.Length = 152.5
pad5.Reversed = True

# Sketch on XZ plane
sketch9 = body.newObject("Sketcher::SketchObject", "Sketch008")
sketch9.AttachmentSupport = (doc.getObject("XZ_Plane"), [""])
sketch9.MapMode = "FlatFace"
sketch9.addGeometry(Part.LineSegment(Vector(-230, 0, 0), Vector(-20, 0, 0)), False)
sketch9.addGeometry(Part.LineSegment(Vector(-20, 0, 0), Vector(-20, -20, 0)), False)
sketch9.addGeometry(Part.LineSegment(Vector(-20, -20, 0), Vector(0, -20, 0)), False)
sketch9.addGeometry(Part.LineSegment(Vector(0, -20, 0), Vector(0, -580, 0)), False)
sketch9.addGeometry(Part.LineSegment(Vector(0, -580, 0), Vector(-20, -580, 0)), False)
sketch9.addGeometry(Part.LineSegment(Vector(-20, -580, 0), Vector(-20, -600, 0)), False)
sketch9.addGeometry(Part.LineSegment(Vector(-20, -600, 0), Vector(-230, -600, 0)), False)
sketch9.addGeometry(Part.LineSegment(Vector(-230, -600, 0), Vector(-230, -580, 0)), False)
sketch9.addGeometry(Part.LineSegment(Vector(-230, -580, 0), Vector(-250, -580, 0)), False)
sketch9.addGeometry(Part.LineSegment(Vector(-250, -580, 0), Vector(-250, -20, 0)), False)
sketch9.addGeometry(Part.LineSegment(Vector(-250, -20, 0), Vector(-230, -20, 0)), False)
sketch9.addGeometry(Part.LineSegment(Vector(-230, -20, 0), Vector(-230, 0, 0)), False)
sketch9.addConstraint(Sketcher.Constraint("Coincident", 0, 2, 1, 1))
sketch9.addConstraint(Sketcher.Constraint("Coincident", 1, 2, 2, 1))
sketch9.addConstraint(Sketcher.Constraint("Coincident", 2, 2, 3, 1))
sketch9.addConstraint(Sketcher.Constraint("Coincident", 3, 2, 4, 1))
sketch9.addConstraint(Sketcher.Constraint("Coincident", 4, 2, 5, 1))
sketch9.addConstraint(Sketcher.Constraint("Coincident", 5, 2, 6, 1))
sketch9.addConstraint(Sketcher.Constraint("Coincident", 6, 2, 7, 1))
sketch9.addConstraint(Sketcher.Constraint("Coincident", 7, 2, 8, 1))
sketch9.addConstraint(Sketcher.Constraint("Coincident", 8, 2, 9, 1))
sketch9.addConstraint(Sketcher.Constraint("Coincident", 9, 2, 10, 1))
sketch9.addConstraint(Sketcher.Constraint("Coincident", 10, 2, 11, 1))
sketch9.addConstraint(Sketcher.Constraint("Coincident", 11, 2, 0, 1))
sketch9.addConstraint(Sketcher.Constraint("Horizontal", 0))
sketch9.addConstraint(Sketcher.Constraint("Vertical", 1))
sketch9.addConstraint(Sketcher.Constraint("Horizontal", 2))
sketch9.addConstraint(Sketcher.Constraint("Vertical", 3))
sketch9.addConstraint(Sketcher.Constraint("Horizontal", 4))
sketch9.addConstraint(Sketcher.Constraint("Vertical", 5))
sketch9.addConstraint(Sketcher.Constraint("Horizontal", 6))
sketch9.addConstraint(Sketcher.Constraint("Vertical", 7))
sketch9.addConstraint(Sketcher.Constraint("Horizontal", 8))
sketch9.addConstraint(Sketcher.Constraint("Vertical", 9))
sketch9.addConstraint(Sketcher.Constraint("Horizontal", 10))
sketch9.addConstraint(Sketcher.Constraint("Vertical", 11))
sketch9.addConstraint(Sketcher.Constraint("PointOnObject", 0, 2, -1))
sketch9.addConstraint(Sketcher.Constraint("PointOnObject", 2, 2, -2))
sketch9.addConstraint(Sketcher.Constraint("Horizontal", 4, 2, 7, 2))
sketch9.addConstraint(Sketcher.Constraint("Horizontal", 2, 2, 9, 2))
sketch9.addConstraint(Sketcher.Constraint("Vertical", 1, 2, 4, 2))
sketch9.addConstraint(Sketcher.Constraint("Vertical", 7, 2, 10, 2))
sketch9.addConstraint(Sketcher.Constraint("Equal", 4, 8))
sketch9.addConstraint(Sketcher.Constraint("Equal", 10, 1))
sketch9.addConstraint(Sketcher.Constraint("Equal", 1, 5))
sketch9.addConstraint(Sketcher.Constraint("DistanceX", 2, 1, 2, 2, 20.0))
sketch9.addConstraint(Sketcher.Constraint("DistanceY", 5, 2, -1, 1, 600.0))
sketch9.addConstraint(Sketcher.Constraint("DistanceX", 8, 2, -1, 1, 250.0))
pocket4 = body.newObject("PartDesign::Pocket", "Pocket003")
pocket4.Profile = sketch9
pocket4.Length = 140

doc.recompute()
